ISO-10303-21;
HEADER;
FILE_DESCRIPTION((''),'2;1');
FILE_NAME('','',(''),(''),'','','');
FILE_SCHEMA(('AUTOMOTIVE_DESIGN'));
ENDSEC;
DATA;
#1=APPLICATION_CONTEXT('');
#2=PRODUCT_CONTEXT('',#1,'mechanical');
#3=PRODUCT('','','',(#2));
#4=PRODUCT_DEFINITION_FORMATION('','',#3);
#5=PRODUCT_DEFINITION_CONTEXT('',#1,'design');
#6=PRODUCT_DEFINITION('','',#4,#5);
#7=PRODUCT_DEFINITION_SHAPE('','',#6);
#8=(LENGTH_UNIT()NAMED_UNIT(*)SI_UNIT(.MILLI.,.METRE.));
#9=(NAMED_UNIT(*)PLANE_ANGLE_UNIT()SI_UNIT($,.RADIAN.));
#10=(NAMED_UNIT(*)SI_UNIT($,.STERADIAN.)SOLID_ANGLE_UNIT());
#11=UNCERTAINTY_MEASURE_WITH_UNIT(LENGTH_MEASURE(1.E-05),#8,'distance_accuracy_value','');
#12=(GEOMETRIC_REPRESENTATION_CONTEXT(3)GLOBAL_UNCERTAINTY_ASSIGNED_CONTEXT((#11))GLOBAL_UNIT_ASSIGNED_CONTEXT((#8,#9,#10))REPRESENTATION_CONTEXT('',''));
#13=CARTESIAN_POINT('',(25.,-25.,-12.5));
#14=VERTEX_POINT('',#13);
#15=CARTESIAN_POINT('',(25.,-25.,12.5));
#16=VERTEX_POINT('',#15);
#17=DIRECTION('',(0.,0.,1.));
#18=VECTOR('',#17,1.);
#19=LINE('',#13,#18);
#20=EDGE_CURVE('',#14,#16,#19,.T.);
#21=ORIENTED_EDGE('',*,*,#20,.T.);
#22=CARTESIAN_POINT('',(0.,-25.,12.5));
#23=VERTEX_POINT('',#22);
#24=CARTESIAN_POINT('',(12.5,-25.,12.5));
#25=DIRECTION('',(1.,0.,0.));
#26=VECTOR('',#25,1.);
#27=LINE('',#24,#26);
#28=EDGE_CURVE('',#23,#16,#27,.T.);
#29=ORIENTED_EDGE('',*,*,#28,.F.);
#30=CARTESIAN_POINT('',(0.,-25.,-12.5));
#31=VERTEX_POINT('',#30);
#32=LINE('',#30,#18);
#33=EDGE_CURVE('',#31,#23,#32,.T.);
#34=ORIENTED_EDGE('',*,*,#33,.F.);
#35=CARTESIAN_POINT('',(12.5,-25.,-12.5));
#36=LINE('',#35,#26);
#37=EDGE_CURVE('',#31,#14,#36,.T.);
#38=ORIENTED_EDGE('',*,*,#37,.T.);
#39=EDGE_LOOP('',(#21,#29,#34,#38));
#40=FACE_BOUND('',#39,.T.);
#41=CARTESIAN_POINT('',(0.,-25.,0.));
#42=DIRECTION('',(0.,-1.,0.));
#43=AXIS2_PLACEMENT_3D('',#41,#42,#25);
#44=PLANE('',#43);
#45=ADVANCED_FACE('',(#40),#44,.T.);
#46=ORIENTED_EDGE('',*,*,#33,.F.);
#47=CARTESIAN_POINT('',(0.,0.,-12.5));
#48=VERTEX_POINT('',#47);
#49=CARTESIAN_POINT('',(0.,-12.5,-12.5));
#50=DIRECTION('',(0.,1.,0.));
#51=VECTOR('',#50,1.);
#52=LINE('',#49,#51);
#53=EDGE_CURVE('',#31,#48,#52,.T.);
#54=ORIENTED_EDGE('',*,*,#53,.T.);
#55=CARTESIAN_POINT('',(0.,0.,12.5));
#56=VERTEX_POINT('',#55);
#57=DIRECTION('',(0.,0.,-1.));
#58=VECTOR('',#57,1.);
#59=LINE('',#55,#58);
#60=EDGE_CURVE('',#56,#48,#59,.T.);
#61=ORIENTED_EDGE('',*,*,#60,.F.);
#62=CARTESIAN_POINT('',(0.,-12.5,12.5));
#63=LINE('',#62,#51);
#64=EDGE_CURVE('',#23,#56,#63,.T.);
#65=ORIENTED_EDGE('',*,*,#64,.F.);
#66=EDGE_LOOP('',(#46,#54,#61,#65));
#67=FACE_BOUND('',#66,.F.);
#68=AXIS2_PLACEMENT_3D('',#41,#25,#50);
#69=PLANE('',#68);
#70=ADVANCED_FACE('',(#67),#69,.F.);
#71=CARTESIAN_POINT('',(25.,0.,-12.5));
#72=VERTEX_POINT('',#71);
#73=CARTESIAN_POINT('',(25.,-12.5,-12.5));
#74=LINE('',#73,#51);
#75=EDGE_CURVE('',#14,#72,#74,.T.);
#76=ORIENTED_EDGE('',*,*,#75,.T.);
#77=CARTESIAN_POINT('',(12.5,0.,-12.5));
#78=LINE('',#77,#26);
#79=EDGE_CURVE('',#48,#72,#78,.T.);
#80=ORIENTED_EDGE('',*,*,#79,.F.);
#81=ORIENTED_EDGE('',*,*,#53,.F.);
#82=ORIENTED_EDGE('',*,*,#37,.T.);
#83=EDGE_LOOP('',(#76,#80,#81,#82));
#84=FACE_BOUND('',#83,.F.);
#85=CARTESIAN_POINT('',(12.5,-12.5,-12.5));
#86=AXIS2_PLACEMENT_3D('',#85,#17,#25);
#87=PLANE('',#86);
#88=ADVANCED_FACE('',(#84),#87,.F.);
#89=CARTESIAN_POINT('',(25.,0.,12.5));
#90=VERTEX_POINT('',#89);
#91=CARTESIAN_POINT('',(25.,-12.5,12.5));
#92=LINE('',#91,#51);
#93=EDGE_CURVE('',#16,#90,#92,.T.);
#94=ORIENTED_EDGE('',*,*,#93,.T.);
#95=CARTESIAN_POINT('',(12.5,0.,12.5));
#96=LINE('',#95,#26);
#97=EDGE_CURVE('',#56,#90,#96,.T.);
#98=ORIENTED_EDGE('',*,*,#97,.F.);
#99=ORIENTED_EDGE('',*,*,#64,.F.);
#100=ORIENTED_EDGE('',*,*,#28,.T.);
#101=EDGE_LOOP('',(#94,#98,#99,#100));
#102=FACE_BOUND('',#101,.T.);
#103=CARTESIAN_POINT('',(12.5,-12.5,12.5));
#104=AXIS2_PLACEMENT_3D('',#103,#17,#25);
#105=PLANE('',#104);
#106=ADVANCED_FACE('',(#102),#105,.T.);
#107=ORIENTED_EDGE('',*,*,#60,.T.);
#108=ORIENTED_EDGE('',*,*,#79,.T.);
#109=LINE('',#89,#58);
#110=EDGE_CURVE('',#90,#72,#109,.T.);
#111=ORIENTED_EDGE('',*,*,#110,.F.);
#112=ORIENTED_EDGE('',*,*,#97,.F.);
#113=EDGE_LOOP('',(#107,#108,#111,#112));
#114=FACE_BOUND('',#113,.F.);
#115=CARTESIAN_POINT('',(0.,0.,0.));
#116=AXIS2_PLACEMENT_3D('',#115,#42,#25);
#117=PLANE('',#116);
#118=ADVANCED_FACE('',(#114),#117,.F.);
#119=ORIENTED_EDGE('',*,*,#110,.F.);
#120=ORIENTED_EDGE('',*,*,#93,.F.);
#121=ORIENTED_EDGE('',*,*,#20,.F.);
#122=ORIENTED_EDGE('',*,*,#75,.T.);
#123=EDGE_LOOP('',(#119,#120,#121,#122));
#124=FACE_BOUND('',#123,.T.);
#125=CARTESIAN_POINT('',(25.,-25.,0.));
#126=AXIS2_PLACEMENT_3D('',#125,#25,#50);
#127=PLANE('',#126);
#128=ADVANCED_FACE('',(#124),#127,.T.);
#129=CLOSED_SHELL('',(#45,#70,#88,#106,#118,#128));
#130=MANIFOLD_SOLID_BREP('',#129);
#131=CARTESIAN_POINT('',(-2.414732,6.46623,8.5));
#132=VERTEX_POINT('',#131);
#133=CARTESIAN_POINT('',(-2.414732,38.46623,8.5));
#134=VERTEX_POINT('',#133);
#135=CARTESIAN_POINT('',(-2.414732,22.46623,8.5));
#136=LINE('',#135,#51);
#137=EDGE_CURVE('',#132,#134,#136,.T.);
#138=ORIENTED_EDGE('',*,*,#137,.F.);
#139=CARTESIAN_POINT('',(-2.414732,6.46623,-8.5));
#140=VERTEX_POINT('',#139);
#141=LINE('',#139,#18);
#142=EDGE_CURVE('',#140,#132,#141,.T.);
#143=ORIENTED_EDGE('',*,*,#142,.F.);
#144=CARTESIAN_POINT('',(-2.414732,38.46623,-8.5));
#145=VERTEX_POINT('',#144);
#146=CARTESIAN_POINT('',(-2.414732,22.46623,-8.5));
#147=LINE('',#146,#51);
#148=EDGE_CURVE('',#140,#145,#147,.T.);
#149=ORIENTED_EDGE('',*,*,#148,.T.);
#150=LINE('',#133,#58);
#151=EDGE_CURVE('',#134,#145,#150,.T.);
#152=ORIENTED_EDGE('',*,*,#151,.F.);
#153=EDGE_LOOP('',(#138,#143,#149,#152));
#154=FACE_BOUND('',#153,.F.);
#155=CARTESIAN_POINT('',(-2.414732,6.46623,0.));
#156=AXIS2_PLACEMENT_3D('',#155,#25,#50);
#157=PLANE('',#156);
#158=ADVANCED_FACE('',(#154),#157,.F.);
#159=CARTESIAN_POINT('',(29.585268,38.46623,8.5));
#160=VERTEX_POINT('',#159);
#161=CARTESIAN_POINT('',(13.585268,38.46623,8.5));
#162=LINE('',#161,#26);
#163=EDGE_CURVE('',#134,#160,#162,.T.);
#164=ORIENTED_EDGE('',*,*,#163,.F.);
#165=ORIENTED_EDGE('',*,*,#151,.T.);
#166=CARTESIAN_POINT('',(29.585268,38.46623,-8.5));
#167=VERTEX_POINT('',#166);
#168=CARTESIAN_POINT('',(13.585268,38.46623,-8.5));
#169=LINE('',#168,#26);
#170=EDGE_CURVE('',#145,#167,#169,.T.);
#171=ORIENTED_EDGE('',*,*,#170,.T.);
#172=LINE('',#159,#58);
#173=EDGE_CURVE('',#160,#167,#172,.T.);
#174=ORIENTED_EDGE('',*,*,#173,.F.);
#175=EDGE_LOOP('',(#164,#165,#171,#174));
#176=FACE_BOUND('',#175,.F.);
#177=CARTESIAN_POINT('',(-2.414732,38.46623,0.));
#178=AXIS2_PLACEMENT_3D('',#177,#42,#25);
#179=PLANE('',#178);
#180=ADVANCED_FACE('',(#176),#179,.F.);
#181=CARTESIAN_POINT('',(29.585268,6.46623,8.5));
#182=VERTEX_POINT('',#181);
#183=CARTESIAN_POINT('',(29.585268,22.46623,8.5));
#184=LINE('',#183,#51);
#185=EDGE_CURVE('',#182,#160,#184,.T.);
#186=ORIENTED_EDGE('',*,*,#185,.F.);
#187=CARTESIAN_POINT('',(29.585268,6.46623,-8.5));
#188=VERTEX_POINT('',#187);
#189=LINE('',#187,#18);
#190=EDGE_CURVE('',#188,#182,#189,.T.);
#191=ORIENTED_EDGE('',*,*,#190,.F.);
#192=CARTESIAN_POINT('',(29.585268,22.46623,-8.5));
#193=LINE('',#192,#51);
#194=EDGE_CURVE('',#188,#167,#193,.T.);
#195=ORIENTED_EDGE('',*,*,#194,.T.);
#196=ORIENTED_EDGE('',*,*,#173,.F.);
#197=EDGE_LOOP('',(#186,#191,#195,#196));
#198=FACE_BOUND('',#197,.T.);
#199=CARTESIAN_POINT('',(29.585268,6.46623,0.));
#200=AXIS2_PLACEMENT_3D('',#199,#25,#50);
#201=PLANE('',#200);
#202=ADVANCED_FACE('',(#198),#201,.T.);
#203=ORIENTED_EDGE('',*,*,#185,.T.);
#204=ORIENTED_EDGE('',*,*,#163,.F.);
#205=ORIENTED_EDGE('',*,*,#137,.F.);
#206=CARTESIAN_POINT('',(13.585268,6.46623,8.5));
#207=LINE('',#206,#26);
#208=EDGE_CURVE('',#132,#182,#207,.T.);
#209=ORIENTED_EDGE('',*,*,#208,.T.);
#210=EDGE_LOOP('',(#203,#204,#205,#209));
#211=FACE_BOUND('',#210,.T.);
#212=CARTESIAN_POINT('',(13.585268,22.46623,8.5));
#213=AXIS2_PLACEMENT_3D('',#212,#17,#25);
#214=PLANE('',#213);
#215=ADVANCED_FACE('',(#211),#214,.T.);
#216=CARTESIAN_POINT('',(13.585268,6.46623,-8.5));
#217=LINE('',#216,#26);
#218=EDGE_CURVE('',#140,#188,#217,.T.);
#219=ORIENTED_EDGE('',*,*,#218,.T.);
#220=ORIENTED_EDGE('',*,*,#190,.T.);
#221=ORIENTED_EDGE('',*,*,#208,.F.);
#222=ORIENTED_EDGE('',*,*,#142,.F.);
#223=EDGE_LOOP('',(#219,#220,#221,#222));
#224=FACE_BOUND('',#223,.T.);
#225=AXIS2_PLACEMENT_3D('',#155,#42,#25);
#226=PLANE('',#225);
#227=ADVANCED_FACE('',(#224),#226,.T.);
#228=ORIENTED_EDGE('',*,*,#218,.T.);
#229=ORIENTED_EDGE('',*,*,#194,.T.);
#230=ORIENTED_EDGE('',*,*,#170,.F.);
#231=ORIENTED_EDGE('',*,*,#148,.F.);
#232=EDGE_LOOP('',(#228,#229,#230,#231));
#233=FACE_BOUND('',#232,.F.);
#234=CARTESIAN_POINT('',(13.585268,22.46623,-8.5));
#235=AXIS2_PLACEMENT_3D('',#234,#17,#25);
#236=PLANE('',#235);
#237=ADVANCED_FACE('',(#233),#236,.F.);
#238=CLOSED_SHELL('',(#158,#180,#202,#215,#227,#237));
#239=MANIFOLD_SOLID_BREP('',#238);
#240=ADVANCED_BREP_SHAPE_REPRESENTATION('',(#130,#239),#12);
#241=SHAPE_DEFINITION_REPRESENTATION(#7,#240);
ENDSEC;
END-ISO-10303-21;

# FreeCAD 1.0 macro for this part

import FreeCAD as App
import Part
import Sketcher
from FreeCAD import Vector

doc = App.newDocument("Part")
body = doc.addObject("PartDesign::Body", "Body")

sketch1 = body.newObject("Sketcher::SketchObject", "Sketch")
sketch1.AttachmentSupport = (doc.getObject("XY_Plane"), [""])
sketch1.MapMode = "FlatFace"
sketch1.addGeometry([
    Part.LineSegment(Vector(0, 0, 0), Vector(0, -25, 0)),
    Part.LineSegment(Vector(0, -25, 0), Vector(25, -25, 0)),
    Part.LineSegment(Vector(25, -25, 0), Vector(25, 0, 0)),
    Part.LineSegment(Vector(25, 0, 0), Vector(0, 0, 0)),
], False)
sketch1.addConstraint([
    Sketcher.Constraint("Coincident", 0, 2, 1, 1),
    Sketcher.Constraint("Coincident", 1, 2, 2, 1),
    Sketcher.Constraint("Coincident", 2, 2, 3, 1),
    Sketcher.Constraint("Coincident", 3, 2, 0, 1),
    Sketcher.Constraint("Vertical", 0),
    Sketcher.Constraint("Horizontal", 1),
    Sketcher.Constraint("Vertical", 2),
    Sketcher.Constraint("Horizontal", 3),
    Sketcher.Constraint("Coincident", 3, 2, -1, 1),
    Sketcher.Constraint("Equal", 3, 0),
    Sketcher.Constraint("DistanceX", 1, 1, 1, 2, 25.0),
])
pad1 = body.newObject("PartDesign::Pad", "Pad")
pad1.Profile = sketch1
pad1.Type = "TwoLengths"
pad1.Length = 12.5
pad1.Length2 = 12.5
body2 = doc.addObject("PartDesign::Body", "Body001")

sketch2 = body2.newObject("Sketcher::SketchObject", "Sketch001")
sketch2.AttachmentSupport = (doc.getObject("XY_Plane001"), [""])
sketch2.MapMode = "FlatFace"
sketch2.addGeometry([
    Part.LineSegment(Vector(-2.414732, 38.46623, 0), Vector(-2.414732, 6.46623, 0)),
    Part.LineSegment(Vector(-2.414732, 6.46623, 0), Vector(29.585268, 6.46623, 0)),
    Part.LineSegment(Vector(29.585268, 6.46623, 0), Vector(29.585268, 38.46623, 0)),
    Part.LineSegment(Vector(29.585268, 38.46623, 0), Vector(-2.414732, 38.46623, 0)),
], False)
sketch2.addConstraint([
    Sketcher.Constraint("Coincident", 0, 2, 1, 1),
    Sketcher.Constraint("Coincident", 1, 2, 2, 1),
    Sketcher.Constraint("Coincident", 2, 2, 3, 1),
    Sketcher.Constraint("Coincident", 3, 2, 0, 1),
    Sketcher.Constraint("Vertical", 0),
    Sketcher.Constraint("Horizontal", 1),
    Sketcher.Constraint("Vertical", 2),
    Sketcher.Constraint("Horizontal", 3),
    Sketcher.Constraint("Equal", 3, 0),
    Sketcher.Constraint("DistanceX", 1, 1, 1, 2, 32.0),
    Sketcher.Constraint("DistanceX", 0, 2, -1, 1, 2.414732),
    Sketcher.Constraint("DistanceY", -1, 1, 0, 2, 6.46623),
])
pad2 = body2.newObject("PartDesign::Pad", "Pad001")
pad2.Profile = sketch2
pad2.Type = "TwoLengths"
pad2.Length = 8.5
pad2.Length2 = 8.5

doc.recompute()
